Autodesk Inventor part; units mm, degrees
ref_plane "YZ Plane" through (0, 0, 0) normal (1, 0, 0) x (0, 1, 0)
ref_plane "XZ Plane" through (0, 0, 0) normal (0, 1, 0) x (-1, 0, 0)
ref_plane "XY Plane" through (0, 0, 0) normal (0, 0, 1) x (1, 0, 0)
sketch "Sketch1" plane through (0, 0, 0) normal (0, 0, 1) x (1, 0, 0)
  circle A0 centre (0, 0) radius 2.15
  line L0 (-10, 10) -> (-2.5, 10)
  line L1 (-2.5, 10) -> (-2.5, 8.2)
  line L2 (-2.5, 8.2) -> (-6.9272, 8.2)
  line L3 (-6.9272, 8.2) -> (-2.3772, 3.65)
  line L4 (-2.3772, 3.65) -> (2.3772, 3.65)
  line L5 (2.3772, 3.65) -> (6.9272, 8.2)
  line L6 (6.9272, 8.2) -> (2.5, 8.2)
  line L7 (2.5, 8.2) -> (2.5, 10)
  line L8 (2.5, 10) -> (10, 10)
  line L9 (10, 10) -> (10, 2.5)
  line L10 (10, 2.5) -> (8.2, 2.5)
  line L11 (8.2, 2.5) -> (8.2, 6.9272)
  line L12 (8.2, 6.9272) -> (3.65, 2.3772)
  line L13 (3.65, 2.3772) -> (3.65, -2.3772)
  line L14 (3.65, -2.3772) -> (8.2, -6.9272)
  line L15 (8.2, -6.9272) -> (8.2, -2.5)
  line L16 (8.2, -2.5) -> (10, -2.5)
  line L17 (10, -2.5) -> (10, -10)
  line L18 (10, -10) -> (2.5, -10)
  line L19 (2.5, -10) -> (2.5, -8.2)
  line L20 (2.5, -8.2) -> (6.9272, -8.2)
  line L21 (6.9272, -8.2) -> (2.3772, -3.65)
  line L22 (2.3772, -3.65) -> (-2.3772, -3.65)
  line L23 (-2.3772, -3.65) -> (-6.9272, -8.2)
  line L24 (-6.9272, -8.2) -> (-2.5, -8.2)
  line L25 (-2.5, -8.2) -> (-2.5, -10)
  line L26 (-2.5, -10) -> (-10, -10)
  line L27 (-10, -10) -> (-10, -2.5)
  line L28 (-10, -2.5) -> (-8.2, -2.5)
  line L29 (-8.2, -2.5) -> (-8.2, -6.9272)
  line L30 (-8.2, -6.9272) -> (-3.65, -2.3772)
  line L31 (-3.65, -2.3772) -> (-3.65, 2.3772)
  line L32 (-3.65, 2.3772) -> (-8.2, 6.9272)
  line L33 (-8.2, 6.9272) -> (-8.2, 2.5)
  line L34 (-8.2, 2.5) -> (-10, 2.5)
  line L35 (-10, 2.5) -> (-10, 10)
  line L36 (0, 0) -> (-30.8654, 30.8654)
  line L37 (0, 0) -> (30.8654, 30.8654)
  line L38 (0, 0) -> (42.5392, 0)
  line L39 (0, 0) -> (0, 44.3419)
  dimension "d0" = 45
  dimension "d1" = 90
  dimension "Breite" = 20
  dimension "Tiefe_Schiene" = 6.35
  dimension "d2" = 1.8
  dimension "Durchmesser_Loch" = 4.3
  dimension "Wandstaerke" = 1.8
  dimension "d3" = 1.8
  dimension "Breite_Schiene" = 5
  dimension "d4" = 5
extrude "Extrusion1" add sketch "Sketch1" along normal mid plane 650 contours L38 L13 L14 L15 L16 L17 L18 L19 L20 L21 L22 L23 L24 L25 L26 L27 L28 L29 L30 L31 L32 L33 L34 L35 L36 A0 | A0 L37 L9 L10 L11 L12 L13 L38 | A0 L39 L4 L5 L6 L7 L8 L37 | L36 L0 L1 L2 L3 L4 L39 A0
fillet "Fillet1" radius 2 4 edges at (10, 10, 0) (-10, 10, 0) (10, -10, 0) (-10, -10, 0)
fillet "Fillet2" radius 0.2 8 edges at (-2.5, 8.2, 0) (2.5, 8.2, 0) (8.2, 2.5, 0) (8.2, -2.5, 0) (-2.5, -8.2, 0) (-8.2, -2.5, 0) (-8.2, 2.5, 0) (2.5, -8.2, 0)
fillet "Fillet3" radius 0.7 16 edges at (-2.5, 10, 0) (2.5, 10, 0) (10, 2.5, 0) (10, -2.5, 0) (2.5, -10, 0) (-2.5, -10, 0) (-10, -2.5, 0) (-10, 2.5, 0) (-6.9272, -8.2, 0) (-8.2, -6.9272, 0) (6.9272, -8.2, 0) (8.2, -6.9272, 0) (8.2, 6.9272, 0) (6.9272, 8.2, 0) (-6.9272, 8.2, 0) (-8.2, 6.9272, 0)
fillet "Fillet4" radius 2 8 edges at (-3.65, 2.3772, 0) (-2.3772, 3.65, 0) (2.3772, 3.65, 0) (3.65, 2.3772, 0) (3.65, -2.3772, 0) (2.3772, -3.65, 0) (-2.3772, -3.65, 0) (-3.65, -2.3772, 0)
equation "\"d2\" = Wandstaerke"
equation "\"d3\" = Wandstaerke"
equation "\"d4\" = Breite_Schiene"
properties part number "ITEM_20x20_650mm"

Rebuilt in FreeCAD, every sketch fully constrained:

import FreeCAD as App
import Part
import Sketcher
Q = App.Units.Quantity


def edges_at(feature, points):
    """Names of the edges that pass closest to the given points."""
    edges = feature.Shape.Edges
    near = lambda p: min(range(len(edges)), key=lambda i: edges[i].distToShape(Part.Vertex(*p))[0])
    return sorted({f"Edge{near(p) + 1}" for p in points})


def add_polygon(sketch, points):
    """Adds a closed chain of lines whose ends are joined by coincident constraints."""
    first, n = sketch.GeometryCount, len(points)
    for a, b in zip(points, points[1:] + points[:1]):
        sketch.addGeometry(Part.LineSegment(App.Vector(*a, 0), App.Vector(*b, 0)), False)
    for i in range(n):
        sketch.addConstraint(Sketcher.Constraint("Coincident", first + i, 2, first + (i + 1) % n, 1))

doc = App.newDocument("Part")
body = doc.addObject("PartDesign::Body", "Body")

# Sketch on XY plane
sketch1 = body.newObject("Sketcher::SketchObject", "Sketch")
sketch1.AttachmentSupport = (doc.getObject("XY_Plane"), [""])
sketch1.MapMode = "FlatFace"
add_polygon(sketch1, [(3.6, -2.4), (3.6, 2.4), (8.2, 6.9), (8.2, 2.5), (10, 2.5), (10, 10), (2.5, 10), (2.5, 8.2), (6.9, 8.2), (2.4, 3.6), (-2.4, 3.6), (-6.9, 8.2), (-2.5, 8.2), (-2.5, 10), (-10, 10), (-10, 2.5), (-8.2, 2.5), (-8.2, 6.9), (-3.6, 2.4), (-3.6, -2.4), (-8.2, -6.9), (-8.2, -2.5), (-10, -2.5), (-10, -10), (-2.5, -10), (-2.5, -8.2), (-6.9, -8.2), (-2.4, -3.6), (2.4, -3.6), (6.9, -8.2), (2.5, -8.2), (2.5, -10), (10, -10), (10, -2.5), (8.2, -2.5), (8.2, -6.9)])  # lines 0-35
sketch1.addGeometry(Part.Circle(App.Vector(0, 0, 0), App.Vector(0, 0, 1), 2.1), False)  # 36
sketch1.addConstraint([
    Sketcher.Constraint("Vertical", 0),
    Sketcher.Constraint("Vertical", 2),
    Sketcher.Constraint("Horizontal", 3),
    Sketcher.Constraint("Vertical", 4),
    Sketcher.Constraint("Horizontal", 5),
    Sketcher.Constraint("Vertical", 6),
    Sketcher.Constraint("Horizontal", 7),
    Sketcher.Constraint("Horizontal", 9),
    Sketcher.Constraint("Horizontal", 11),
    Sketcher.Constraint("Vertical", 12),
    Sketcher.Constraint("Horizontal", 13),
    Sketcher.Constraint("Vertical", 14),
    Sketcher.Constraint("Horizontal", 15),
    Sketcher.Constraint("Vertical", 16),
    Sketcher.Constraint("Vertical", 18),
    Sketcher.Constraint("Vertical", 20),
    Sketcher.Constraint("Horizontal", 21),
    Sketcher.Constraint("Vertical", 22),
    Sketcher.Constraint("Horizontal", 23),
    Sketcher.Constraint("Vertical", 24),
    Sketcher.Constraint("Horizontal", 25),
    Sketcher.Constraint("Horizontal", 27),
    Sketcher.Constraint("Horizontal", 29),
    Sketcher.Constraint("Vertical", 30),
    Sketcher.Constraint("Horizontal", 31),
    Sketcher.Constraint("Vertical", 32),
    Sketcher.Constraint("Horizontal", 33),
    Sketcher.Constraint("Vertical", 34),
    Sketcher.Constraint("Coincident", 36, 3, -1, 1),
    Sketcher.Constraint("Symmetric", 0, 2, 18, 2, -1, 1),
    Sketcher.Constraint("Symmetric", 1, 2, 19, 2, -1, 1),
    Sketcher.Constraint("Symmetric", 3, 2, 21, 2, -1, 1),
    Sketcher.Constraint("Symmetric", 5, 2, 23, 2, -1, 1),
    Sketcher.Constraint("Symmetric", 7, 2, 25, 2, -1, 1),
    Sketcher.Constraint("Symmetric", 8, 2, 26, 2, -1, 1),
    Sketcher.Constraint("Symmetric", 10, 2, 28, 2, -1, 1),
    Sketcher.Constraint("Symmetric", 12, 2, 30, 2, -1, 1),
    Sketcher.Constraint("Symmetric", 14, 2, 32, 2, -1, 1),
    Sketcher.Constraint("Symmetric", 16, 2, 34, 2, -1, 1),
    Sketcher.Constraint("Symmetric", 7, 2, 10, 2, -2),
    Sketcher.Constraint("Symmetric", 5, 2, 12, 2, -2),
    Sketcher.Constraint("Symmetric", 3, 2, 14, 2, -2),
    Sketcher.Constraint("Symmetric", 1, 2, 16, 2, -2),
    Sketcher.Constraint("Parallel", 1, 8),
    Sketcher.Constraint("Perpendicular", 8, 10),
    Sketcher.Constraint("Parallel", 10, 17),
    Sketcher.Constraint("Perpendicular", 26, 28),
    Sketcher.Constraint("Parallel", 28, 35),
    Sketcher.Constraint("Horizontal", 0, 2, 17, 2),
    Sketcher.Constraint("Equal", 27, 0),
    Sketcher.Constraint("Equal", 29, 2),
    Sketcher.Constraint("Equal", 31, 4),
    Sketcher.Constraint("Equal", 33, 6),
    Sketcher.Constraint("Equal", 1, 8),
    Sketcher.Constraint("Diameter", 36, Q("4.3 mm")),
    Sketcher.Constraint("DistanceX", 3, 1, 3, 2, Q("1.8 mm")),
    Sketcher.Constraint("DistanceX", 11, 2, 6, 2, Q("5 mm")),
    Sketcher.Constraint("DistanceX", 0, 2, 3, 2, Q("6.35 mm")),
    Sketcher.Constraint("DistanceX", 5, 2, 5, 1, Q("7.5 mm")),
    Sketcher.Constraint("DistanceX", 7, 1, 7, 2, Q("4.4272 mm")),
])
pad1 = body.newObject("PartDesign::Pad", "Pad")
pad1.Profile = sketch1
pad1.Length = 650
pad1.Midplane = True
doc.recompute()

fillet = body.newObject("PartDesign::Fillet", "Fillet")
fillet.Base = (pad1, edges_at(pad1, [
    (10, 10, 0),
    (-10, 10, 0),
    (10, -10, 0),
    (-10, -10, 0),
]))
fillet.Radius = 2
doc.recompute()

fillet2 = body.newObject("PartDesign::Fillet", "Fillet001")
fillet2.Base = (fillet, edges_at(fillet, [
    (-2.5, 8.2, 0),
    (2.5, 8.2, 0),
    (8.2, 2.5, 0),
    (8.2, -2.5, 0),
    (-2.5, -8.2, 0),
    (-8.2, -2.5, 0),
    (-8.2, 2.5, 0),
    (2.5, -8.2, 0),
]))
fillet2.Radius = 0.2
doc.recompute()

fillet3 = body.newObject("PartDesign::Fillet", "Fillet002")
fillet3.Base = (fillet2, edges_at(fillet2, [
    (-2.5, 10, 0),
    (2.5, 10, 0),
    (10, 2.5, 0),
    (10, -2.5, 0),
    (2.5, -10, 0),
    (-2.5, -10, 0),
    (-10, -2.5, 0),
    (-10, 2.5, 0),
    (-6.927, -8.2, 0),
    (-8.2, -6.927, 0),
    (6.927, -8.2, 0),
    (8.2, -6.927, 0),
    (8.2, 6.927, 0),
    (6.927, 8.2, 0),
    (-6.927, 8.2, 0),
    (-8.2, 6.927, 0),
]))
fillet3.Radius = 0.7
doc.recompute()

fillet4 = body.newObject("PartDesign::Fillet", "Fillet003")
fillet4.Base = (fillet3, edges_at(fillet3, [
    (-3.65, 2.377, 0),
    (-2.377, 3.65, 0),
    (2.377, 3.65, 0),
    (3.65, 2.377, 0),
    (3.65, -2.377, 0),
    (2.377, -3.65, 0),
    (-2.377, -3.65, 0),
    (-3.65, -2.377, 0),
]))
fillet4.Radius = 2

doc.recompute()
